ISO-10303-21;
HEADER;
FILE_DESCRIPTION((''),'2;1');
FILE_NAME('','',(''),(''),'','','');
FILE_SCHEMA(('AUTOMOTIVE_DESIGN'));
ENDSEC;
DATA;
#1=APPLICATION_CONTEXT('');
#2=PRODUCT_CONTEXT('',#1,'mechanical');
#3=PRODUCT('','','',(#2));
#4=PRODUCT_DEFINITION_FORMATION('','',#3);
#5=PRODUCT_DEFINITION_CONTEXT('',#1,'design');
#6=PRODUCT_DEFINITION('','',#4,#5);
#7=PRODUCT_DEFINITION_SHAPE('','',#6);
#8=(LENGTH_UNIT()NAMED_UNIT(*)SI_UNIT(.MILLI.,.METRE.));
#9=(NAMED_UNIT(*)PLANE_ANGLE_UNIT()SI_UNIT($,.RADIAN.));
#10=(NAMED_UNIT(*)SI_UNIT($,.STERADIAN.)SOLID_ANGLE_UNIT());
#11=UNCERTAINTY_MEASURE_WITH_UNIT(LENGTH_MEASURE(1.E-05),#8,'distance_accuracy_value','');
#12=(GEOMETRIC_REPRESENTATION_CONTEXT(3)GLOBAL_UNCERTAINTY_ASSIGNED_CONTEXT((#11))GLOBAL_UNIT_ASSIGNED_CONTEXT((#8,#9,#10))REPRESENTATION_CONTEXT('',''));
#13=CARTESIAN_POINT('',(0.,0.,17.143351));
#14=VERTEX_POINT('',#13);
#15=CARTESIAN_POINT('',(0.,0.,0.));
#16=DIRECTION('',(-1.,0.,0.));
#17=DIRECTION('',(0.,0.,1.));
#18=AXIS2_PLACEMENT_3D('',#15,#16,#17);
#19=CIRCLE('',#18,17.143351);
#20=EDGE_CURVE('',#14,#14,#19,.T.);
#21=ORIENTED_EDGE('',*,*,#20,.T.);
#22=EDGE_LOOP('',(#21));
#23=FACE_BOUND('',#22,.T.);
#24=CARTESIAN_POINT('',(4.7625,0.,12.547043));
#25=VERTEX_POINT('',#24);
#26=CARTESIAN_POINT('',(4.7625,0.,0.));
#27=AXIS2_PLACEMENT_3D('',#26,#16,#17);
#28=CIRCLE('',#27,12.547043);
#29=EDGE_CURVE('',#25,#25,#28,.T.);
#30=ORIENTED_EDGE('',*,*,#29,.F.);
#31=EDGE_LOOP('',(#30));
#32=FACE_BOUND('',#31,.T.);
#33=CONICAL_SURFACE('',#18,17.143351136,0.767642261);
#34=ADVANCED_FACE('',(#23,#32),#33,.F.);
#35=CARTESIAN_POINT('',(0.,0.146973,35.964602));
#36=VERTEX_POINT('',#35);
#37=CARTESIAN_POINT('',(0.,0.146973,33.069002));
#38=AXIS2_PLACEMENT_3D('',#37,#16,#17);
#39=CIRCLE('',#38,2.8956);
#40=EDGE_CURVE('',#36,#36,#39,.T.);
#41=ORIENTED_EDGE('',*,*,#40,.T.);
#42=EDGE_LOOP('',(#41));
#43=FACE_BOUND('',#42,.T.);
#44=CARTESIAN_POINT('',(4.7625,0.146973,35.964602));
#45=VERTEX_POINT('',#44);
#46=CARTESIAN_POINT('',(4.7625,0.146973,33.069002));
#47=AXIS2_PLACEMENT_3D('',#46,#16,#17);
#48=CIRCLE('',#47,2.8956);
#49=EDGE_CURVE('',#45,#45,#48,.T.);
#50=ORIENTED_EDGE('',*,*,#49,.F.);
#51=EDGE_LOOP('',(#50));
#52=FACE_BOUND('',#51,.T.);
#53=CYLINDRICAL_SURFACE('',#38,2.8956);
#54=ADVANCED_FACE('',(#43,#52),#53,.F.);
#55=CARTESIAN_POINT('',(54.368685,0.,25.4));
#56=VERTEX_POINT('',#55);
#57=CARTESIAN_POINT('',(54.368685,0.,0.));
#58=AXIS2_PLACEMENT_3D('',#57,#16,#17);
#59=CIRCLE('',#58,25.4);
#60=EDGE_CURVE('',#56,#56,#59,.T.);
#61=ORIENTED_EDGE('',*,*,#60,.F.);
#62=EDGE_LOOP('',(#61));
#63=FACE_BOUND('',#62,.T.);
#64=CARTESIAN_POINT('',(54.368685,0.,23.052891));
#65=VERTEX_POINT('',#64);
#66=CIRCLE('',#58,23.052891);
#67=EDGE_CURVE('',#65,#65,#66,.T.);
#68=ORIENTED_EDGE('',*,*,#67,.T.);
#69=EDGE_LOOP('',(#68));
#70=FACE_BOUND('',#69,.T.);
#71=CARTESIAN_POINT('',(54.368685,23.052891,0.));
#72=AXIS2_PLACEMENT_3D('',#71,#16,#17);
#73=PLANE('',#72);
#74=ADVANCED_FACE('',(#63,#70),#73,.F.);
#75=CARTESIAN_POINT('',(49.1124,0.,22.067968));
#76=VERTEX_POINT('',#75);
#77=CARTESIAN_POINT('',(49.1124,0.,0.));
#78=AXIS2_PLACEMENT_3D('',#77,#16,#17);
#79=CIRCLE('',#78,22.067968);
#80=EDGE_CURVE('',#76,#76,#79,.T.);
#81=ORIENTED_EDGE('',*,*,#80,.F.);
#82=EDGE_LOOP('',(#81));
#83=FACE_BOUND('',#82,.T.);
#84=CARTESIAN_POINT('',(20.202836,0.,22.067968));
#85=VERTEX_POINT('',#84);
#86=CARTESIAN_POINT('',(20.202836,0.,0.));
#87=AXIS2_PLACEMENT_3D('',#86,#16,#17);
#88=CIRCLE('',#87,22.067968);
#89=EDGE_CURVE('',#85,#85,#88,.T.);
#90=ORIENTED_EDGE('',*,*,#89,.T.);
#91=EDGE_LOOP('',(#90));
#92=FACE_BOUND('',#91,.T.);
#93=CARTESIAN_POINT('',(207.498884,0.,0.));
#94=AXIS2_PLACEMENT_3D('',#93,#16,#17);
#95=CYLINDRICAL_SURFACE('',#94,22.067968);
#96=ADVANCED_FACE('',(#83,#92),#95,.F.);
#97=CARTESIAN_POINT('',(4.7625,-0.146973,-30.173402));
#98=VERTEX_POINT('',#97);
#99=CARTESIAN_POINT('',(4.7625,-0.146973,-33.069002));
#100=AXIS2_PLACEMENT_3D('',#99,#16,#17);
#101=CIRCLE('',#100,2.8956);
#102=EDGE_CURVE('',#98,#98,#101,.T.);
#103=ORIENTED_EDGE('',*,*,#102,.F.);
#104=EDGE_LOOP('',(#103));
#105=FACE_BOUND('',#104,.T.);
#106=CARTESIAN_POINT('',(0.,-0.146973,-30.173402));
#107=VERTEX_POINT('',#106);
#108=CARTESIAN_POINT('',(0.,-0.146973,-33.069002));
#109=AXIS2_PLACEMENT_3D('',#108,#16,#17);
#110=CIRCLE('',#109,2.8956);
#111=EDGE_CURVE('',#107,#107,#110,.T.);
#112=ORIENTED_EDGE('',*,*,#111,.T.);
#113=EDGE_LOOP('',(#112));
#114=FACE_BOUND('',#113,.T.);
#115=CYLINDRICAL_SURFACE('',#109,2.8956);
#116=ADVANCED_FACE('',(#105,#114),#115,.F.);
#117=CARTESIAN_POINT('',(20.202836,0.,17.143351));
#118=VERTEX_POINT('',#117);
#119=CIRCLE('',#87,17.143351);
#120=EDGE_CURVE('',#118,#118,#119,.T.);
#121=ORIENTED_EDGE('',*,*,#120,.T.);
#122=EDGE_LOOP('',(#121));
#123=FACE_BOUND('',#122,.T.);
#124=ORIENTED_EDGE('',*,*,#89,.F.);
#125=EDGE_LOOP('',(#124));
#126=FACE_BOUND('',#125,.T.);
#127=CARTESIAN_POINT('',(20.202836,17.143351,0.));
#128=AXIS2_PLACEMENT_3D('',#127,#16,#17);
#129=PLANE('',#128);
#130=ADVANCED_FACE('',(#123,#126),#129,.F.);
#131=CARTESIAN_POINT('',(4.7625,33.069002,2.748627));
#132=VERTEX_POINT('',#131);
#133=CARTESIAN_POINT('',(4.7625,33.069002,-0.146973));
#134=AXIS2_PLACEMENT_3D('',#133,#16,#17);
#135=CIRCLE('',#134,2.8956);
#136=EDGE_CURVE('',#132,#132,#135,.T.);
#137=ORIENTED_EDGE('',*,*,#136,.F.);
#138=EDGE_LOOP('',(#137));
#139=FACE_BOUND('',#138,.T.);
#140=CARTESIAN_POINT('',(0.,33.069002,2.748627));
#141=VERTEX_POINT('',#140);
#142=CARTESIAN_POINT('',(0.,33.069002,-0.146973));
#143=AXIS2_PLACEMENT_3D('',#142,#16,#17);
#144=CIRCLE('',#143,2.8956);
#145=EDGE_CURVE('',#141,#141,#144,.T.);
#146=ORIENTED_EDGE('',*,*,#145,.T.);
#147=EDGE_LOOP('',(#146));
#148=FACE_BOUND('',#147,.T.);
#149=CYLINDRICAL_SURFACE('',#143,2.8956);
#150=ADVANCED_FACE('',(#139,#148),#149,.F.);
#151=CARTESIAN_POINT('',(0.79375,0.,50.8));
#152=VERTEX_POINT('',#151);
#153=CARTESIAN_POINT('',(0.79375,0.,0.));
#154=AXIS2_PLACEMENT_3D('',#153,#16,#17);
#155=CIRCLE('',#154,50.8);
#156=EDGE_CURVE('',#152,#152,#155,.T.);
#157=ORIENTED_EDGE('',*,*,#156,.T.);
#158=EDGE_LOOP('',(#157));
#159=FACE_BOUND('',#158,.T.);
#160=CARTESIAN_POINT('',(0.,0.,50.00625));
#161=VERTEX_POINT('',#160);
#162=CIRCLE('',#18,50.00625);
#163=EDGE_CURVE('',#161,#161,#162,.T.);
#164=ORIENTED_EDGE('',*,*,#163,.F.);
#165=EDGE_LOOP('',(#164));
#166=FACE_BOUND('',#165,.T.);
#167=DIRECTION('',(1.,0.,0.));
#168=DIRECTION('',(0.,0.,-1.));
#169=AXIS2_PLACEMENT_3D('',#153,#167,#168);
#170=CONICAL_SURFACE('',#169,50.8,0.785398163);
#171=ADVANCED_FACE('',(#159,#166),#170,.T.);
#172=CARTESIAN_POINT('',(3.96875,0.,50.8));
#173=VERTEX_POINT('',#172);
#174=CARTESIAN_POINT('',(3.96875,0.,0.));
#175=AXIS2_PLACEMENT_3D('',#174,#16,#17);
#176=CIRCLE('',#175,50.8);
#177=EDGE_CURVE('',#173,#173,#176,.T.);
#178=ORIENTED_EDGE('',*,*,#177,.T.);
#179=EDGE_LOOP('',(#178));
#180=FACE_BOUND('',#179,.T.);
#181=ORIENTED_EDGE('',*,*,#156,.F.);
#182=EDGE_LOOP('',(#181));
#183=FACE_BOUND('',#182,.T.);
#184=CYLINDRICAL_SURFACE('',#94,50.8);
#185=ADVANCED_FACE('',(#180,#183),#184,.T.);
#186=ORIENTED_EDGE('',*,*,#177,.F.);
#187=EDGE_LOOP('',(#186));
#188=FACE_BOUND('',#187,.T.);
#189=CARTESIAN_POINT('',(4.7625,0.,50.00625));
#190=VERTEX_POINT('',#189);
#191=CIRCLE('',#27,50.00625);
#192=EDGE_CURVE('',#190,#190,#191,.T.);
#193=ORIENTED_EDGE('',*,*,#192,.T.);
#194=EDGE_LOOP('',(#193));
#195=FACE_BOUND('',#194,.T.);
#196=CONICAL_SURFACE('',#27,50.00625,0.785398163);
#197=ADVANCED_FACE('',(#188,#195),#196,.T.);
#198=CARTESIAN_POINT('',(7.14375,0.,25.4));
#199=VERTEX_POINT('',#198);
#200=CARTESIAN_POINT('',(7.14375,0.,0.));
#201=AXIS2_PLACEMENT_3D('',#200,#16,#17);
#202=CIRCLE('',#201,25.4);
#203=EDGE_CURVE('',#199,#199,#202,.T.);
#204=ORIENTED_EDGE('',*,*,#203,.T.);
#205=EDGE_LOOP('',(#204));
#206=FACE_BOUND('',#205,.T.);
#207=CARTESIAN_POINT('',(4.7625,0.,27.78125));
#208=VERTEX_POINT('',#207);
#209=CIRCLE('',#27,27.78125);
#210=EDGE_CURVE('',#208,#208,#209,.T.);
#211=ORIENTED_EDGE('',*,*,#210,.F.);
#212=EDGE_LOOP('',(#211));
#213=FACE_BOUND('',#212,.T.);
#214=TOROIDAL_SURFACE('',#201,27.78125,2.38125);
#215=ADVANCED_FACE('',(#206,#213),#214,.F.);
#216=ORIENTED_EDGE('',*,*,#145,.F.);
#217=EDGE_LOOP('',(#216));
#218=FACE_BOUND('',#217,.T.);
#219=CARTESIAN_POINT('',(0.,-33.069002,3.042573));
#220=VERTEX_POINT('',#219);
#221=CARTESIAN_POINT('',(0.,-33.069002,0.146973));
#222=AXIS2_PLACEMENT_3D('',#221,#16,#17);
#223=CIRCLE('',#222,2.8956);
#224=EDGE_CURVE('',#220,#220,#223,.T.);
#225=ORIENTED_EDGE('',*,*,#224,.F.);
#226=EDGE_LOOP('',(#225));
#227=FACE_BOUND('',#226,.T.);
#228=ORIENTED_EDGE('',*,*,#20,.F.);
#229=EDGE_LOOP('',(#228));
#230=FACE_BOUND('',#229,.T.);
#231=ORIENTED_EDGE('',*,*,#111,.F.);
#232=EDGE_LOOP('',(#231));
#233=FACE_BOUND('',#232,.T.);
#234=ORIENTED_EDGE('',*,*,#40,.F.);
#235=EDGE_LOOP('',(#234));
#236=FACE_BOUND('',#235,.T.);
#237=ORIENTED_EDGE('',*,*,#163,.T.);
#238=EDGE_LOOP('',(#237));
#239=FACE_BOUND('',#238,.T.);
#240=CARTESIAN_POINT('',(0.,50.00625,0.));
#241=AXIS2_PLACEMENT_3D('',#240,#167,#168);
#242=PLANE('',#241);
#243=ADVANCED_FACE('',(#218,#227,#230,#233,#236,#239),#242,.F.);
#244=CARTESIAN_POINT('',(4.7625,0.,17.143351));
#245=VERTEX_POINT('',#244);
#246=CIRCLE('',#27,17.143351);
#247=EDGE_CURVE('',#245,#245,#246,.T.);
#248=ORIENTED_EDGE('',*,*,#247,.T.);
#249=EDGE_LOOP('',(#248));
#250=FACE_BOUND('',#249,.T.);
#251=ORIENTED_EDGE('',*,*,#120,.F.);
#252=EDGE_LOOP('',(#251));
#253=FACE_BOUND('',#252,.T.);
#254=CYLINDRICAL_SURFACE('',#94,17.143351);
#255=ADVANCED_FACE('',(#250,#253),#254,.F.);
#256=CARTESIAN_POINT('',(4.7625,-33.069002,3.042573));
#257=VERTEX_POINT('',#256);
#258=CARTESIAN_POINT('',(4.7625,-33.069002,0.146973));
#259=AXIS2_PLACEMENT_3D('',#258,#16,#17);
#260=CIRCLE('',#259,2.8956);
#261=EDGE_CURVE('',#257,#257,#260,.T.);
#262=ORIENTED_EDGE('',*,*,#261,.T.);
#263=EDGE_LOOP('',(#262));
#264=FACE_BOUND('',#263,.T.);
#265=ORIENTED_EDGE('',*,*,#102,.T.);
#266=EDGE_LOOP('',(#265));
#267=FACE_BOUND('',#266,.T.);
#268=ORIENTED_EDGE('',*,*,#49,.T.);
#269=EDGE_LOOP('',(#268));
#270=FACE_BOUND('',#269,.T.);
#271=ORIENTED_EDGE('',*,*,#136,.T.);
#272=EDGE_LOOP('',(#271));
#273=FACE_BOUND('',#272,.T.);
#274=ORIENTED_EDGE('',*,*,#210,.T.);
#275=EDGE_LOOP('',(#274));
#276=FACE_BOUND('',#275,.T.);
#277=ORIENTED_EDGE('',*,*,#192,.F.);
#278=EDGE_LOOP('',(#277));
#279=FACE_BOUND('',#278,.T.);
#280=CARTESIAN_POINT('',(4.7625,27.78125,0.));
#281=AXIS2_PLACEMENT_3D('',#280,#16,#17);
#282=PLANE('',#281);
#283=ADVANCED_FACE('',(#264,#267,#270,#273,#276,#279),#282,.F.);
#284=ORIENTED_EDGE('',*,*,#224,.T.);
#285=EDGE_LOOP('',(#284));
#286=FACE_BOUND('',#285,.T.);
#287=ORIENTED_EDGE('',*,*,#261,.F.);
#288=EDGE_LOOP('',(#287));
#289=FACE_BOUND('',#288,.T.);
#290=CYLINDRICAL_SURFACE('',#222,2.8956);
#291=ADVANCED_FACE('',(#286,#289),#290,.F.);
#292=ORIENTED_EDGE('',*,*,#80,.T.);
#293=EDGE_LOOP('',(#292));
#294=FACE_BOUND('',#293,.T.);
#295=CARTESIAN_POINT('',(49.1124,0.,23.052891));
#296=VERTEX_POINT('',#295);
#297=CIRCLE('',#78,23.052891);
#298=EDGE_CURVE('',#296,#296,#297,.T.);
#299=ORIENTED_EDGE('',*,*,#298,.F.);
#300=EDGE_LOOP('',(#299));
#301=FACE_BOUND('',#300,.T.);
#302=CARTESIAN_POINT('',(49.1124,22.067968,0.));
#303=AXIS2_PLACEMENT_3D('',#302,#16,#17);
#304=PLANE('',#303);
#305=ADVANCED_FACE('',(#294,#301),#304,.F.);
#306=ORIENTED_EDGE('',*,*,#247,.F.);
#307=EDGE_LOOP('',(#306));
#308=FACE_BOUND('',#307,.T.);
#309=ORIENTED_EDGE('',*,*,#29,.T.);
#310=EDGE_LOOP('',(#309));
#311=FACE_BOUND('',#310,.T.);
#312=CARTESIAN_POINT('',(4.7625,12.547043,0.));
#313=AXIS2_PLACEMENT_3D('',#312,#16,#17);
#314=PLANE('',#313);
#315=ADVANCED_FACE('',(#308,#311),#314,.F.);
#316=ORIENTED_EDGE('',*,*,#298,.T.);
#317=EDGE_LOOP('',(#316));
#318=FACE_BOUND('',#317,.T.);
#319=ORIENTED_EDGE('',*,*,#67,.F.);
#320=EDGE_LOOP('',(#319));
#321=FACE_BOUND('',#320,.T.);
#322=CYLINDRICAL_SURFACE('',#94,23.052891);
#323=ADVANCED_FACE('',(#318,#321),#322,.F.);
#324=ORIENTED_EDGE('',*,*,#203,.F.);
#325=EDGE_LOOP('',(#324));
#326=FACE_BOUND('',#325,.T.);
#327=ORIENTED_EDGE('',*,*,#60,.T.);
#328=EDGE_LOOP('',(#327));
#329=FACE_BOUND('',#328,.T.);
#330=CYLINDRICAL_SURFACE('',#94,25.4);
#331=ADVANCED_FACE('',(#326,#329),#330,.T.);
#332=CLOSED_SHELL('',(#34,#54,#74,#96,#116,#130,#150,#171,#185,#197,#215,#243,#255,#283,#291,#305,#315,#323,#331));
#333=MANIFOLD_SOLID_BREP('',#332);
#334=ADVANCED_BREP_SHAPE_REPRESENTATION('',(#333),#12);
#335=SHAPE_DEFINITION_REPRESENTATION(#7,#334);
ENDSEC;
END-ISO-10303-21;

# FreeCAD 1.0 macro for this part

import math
import FreeCAD as App
import Part
import Sketcher
Q = App.Units.Quantity

doc = App.newDocument("Part")
body = doc.addObject("PartDesign::Body", "Body")

sketch1 = body.newObject("Sketcher::SketchObject", "Sketch")
sketch1.AttachmentSupport = (doc.getObject("XY_Plane"), [""])
sketch1.MapMode = "FlatFace"
sketch1.addGeometry([
    Part.LineSegment(App.Vector(4.8, 12.5, 0), App.Vector(4.8, 17.1, 0)),
    Part.LineSegment(App.Vector(4.8, 17.1, 0), App.Vector(20.2, 17.1, 0)),
    Part.LineSegment(App.Vector(20.2, 17.1, 0), App.Vector(20.2, 22.1, 0)),
    Part.LineSegment(App.Vector(20.2, 22.1, 0), App.Vector(49.1, 22.1, 0)),
    Part.LineSegment(App.Vector(49.1, 22.1, 0), App.Vector(49.1, 23.1, 0)),
    Part.LineSegment(App.Vector(49.1, 23.1, 0), App.Vector(54.4, 23.1, 0)),
    Part.LineSegment(App.Vector(54.4, 23.1, 0), App.Vector(54.4, 25.4, 0)),
    Part.LineSegment(App.Vector(54.4, 25.4, 0), App.Vector(7.1, 25.4, 0)),
    Part.ArcOfCircle(Part.Circle(App.Vector(7.1, 27.8, 0), App.Vector(0, 0, 1), 2.4), math.radians(180), math.radians(270)),
    Part.LineSegment(App.Vector(4.8, 27.8, 0), App.Vector(4.8, 50, 0)),
    Part.LineSegment(App.Vector(4.8, 50, 0), App.Vector(4, 50.8, 0)),
    Part.LineSegment(App.Vector(4, 50.8, 0), App.Vector(0.8, 50.8, 0)),
    Part.LineSegment(App.Vector(0.8, 50.8, 0), App.Vector(0, 50, 0)),
    Part.LineSegment(App.Vector(0, 50, 0), App.Vector(0, 17.1, 0)),
    Part.LineSegment(App.Vector(0, 17.1, 0), App.Vector(4.8, 12.5, 0)),
], False)
sketch1.addConstraint([
    Sketcher.Constraint("Coincident", 0, 2, 1, 1),
    Sketcher.Constraint("Coincident", 1, 2, 2, 1),
    Sketcher.Constraint("Coincident", 2, 2, 3, 1),
    Sketcher.Constraint("Coincident", 3, 2, 4, 1),
    Sketcher.Constraint("Coincident", 4, 2, 5, 1),
    Sketcher.Constraint("Coincident", 5, 2, 6, 1),
    Sketcher.Constraint("Coincident", 6, 2, 7, 1),
    Sketcher.Constraint("Tangent", 7, 2, 8, 2),
    Sketcher.Constraint("Tangent", 8, 1, 9, 1),
    Sketcher.Constraint("Coincident", 9, 2, 10, 1),
    Sketcher.Constraint("Coincident", 10, 2, 11, 1),
    Sketcher.Constraint("Coincident", 11, 2, 12, 1),
    Sketcher.Constraint("Coincident", 12, 2, 13, 1),
    Sketcher.Constraint("Coincident", 13, 2, 14, 1),
    Sketcher.Constraint("Coincident", 14, 2, 0, 1),
    Sketcher.Constraint("Vertical", 0),
    Sketcher.Constraint("Horizontal", 1),
    Sketcher.Constraint("Vertical", 2),
    Sketcher.Constraint("Horizontal", 3),
    Sketcher.Constraint("Vertical", 4),
    Sketcher.Constraint("Horizontal", 5),
    Sketcher.Constraint("Vertical", 6),
    Sketcher.Constraint("Horizontal", 7),
    Sketcher.Constraint("Vertical", 9),
    Sketcher.Constraint("Horizontal", 11),
    Sketcher.Constraint("Vertical", 13),
    Sketcher.Constraint("PointOnObject", 12, 2, -2),
    Sketcher.Constraint("Perpendicular", 10, 12),
    Sketcher.Constraint("Horizontal", 9, 2, 12, 2),
    Sketcher.Constraint("Horizontal", 1, 2, 13, 2),
    Sketcher.Constraint("Vertical", 0, 2, 8, 1),
    Sketcher.Constraint("Equal", 10, 12),
    Sketcher.Constraint("DistanceY", -1, 1, 6, 2, Q("1 in")),
    Sketcher.Constraint("DistanceY", -1, 1, 10, 2, Q("2 in")),
    Sketcher.Constraint("Radius", 8, Q("0.09375 in")),
    Sketcher.Constraint("DistanceX", 11, 2, 11, 1, Q("0.125 in")),
    Sketcher.Constraint("DistanceY", 9, 1, 9, 2, Q("0.875 in")),
    Sketcher.Constraint("DistanceY", 13, 2, 13, 1, 32.862899),
    Sketcher.Constraint("DistanceY", 0, 1, 0, 2, 4.596308),
    Sketcher.Constraint("DistanceY", 6, 1, 6, 2, 2.347109),
    Sketcher.Constraint("DistanceX", -1, 1, 3, 2, 49.1124),
    Sketcher.Constraint("DistanceX", 1, 1, 1, 2, 15.440336),
    Sketcher.Constraint("DistanceX", 5, 1, 5, 2, 5.256285),
    Sketcher.Constraint("DistanceY", 2, 1, 2, 2, 4.924617),
])
revolution = body.newObject("PartDesign::Revolution", "Revolution")
revolution.Profile = sketch1
revolution.ReferenceAxis = (sketch1, ["H_Axis"])
revolution.Angle = 360

sketch2 = body.newObject("Sketcher::SketchObject", "Sketch001")
sketch2.AttachmentSupport = (doc.getObject("YZ_Plane"), [""])
sketch2.MapMode = "FlatFace"
sketch2.addGeometry(Part.Circle(App.Vector(33.1, -0.1, 0), App.Vector(0, 0, 1), 2.9), False)
sketch2.addConstraint([
    Sketcher.Constraint("Diameter", 0, Q("0.228 in")),
    Sketcher.Constraint("DistanceX", -1, 1, 0, 3, 33.069002),
    Sketcher.Constraint("DistanceY", 0, 3, -1, 1, 0.146973),
])
doc.recompute()
hole = body.newObject("PartDesign::Hole", "Hole")
hole.Profile = sketch2
hole.ThreadType = "None"
hole.Diameter = Q("0.228 in")
hole.DepthType = "ThroughAll"
hole.Reversed = True
doc.recompute()

polarpattern = body.newObject("PartDesign::PolarPattern", "PolarPattern")
polarpattern.Originals = [hole]
polarpattern.Axis = (doc.getObject("X_Axis"), [""])
polarpattern.Angle = 360
polarpattern.Occurrences = 4
body.Tip = polarpattern

doc.recompute()
